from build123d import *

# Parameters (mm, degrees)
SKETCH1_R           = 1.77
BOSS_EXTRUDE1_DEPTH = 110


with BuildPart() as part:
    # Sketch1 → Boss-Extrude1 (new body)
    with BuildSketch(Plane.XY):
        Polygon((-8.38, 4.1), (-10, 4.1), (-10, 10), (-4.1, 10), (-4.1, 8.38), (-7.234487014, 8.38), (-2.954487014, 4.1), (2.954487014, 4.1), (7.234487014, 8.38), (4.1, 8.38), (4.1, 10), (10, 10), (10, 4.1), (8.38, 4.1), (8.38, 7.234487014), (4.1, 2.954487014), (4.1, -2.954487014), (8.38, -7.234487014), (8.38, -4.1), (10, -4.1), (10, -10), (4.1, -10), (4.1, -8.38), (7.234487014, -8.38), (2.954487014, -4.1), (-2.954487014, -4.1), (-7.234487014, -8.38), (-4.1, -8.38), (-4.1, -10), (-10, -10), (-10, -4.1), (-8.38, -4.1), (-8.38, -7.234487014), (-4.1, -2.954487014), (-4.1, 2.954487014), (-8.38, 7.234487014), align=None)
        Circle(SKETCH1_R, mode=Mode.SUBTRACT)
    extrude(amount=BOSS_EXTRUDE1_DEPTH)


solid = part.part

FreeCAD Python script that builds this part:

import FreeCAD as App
import Part
import Sketcher


def add_polygon(sketch, points):
    """Adds a closed chain of lines whose ends are joined by coincident constraints."""
    first, n = sketch.GeometryCount, len(points)
    for a, b in zip(points, points[1:] + points[:1]):
        sketch.addGeometry(Part.LineSegment(App.Vector(*a, 0), App.Vector(*b, 0)), False)
    for i in range(n):
        sketch.addConstraint(Sketcher.Constraint("Coincident", first + i, 2, first + (i + 1) % n, 1))

doc = App.newDocument("Part")
body = doc.addObject("PartDesign::Body", "Body")

# Sketch on XY plane
sketch1 = body.newObject("Sketcher::SketchObject", "Sketch")
sketch1.AttachmentSupport = (doc.getObject("XY_Plane"), [""])
sketch1.MapMode = "FlatFace"
add_polygon(sketch1, [(-10, 4.1), (-8.4, 4.1), (-8.4, 7.2), (-4.1, 3), (-4.1, -3), (-8.4, -7.2), (-8.4, -4.1), (-10, -4.1), (-10, -10), (-4.1, -10), (-4.1, -8.4), (-7.2, -8.4), (-3, -4.1), (3, -4.1), (7.2, -8.4), (4.1, -8.4), (4.1, -10), (10, -10), (10, -4.1), (8.4, -4.1), (8.4, -7.2), (4.1, -3), (4.1, 3), (8.4, 7.2), (8.4, 4.1), (10, 4.1), (10, 10), (4.1, 10), (4.1, 8.4), (7.2, 8.4), (3, 4.1), (-3, 4.1), (-7.2, 8.4), (-4.1, 8.4), (-4.1, 10), (-10, 10)])  # lines 0-35
sketch1.addGeometry(Part.Circle(App.Vector(0, 0, 0), App.Vector(0, 0, 1), 1.8), False)  # 36
sketch1.addConstraint([
    Sketcher.Constraint("Horizontal", 0),
    Sketcher.Constraint("Vertical", 1),
    Sketcher.Constraint("Vertical", 3),
    Sketcher.Constraint("Vertical", 5),
    Sketcher.Constraint("Horizontal", 6),
    Sketcher.Constraint("Vertical", 7),
    Sketcher.Constraint("Horizontal", 8),
    Sketcher.Constraint("Vertical", 9),
    Sketcher.Constraint("Horizontal", 10),
    Sketcher.Constraint("Horizontal", 12),
    Sketcher.Constraint("Horizontal", 14),
    Sketcher.Constraint("Vertical", 15),
    Sketcher.Constraint("Horizontal", 16),
    Sketcher.Constraint("Vertical", 17),
    Sketcher.Constraint("Horizontal", 18),
    Sketcher.Constraint("Vertical", 19),
    Sketcher.Constraint("Vertical", 21),
    Sketcher.Constraint("Vertical", 23),
    Sketcher.Constraint("Horizontal", 24),
    Sketcher.Constraint("Vertical", 25),
    Sketcher.Constraint("Horizontal", 26),
    Sketcher.Constraint("Vertical", 27),
    Sketcher.Constraint("Horizontal", 28),
    Sketcher.Constraint("Horizontal", 30),
    Sketcher.Constraint("Horizontal", 32),
    Sketcher.Constraint("Vertical", 33),
    Sketcher.Constraint("Horizontal", 34),
    Sketcher.Constraint("Vertical", 35),
    Sketcher.Constraint("Coincident", 36, 3, -1, 1),
    Sketcher.Constraint("Symmetric", 0, 2, 18, 2, -1, 1),
    Sketcher.Constraint("Symmetric", 2, 2, 20, 2, -1, 1),
    Sketcher.Constraint("Symmetric", 4, 2, 22, 2, -1, 1),
    Sketcher.Constraint("Symmetric", 6, 2, 24, 2, -1, 1),
    Sketcher.Constraint("Symmetric", 8, 2, 26, 2, -1, 1),
    Sketcher.Constraint("Symmetric", 10, 2, 28, 2, -1, 1),
    Sketcher.Constraint("Symmetric", 11, 2, 29, 2, -1, 1),
    Sketcher.Constraint("Symmetric", 13, 2, 31, 2, -1, 1),
    Sketcher.Constraint("Symmetric", 15, 2, 33, 2, -1, 1),
    Sketcher.Constraint("Symmetric", 10, 2, 13, 2, -2),
    Sketcher.Constraint("Symmetric", 8, 2, 15, 2, -2),
    Sketcher.Constraint("Symmetric", 6, 2, 17, 2, -2),
    Sketcher.Constraint("Symmetric", 4, 2, 19, 2, -2),
    Sketcher.Constraint("Perpendicular", 2, 4),
    Sketcher.Constraint("Parallel", 4, 11),
    Sketcher.Constraint("Perpendicular", 11, 13),
    Sketcher.Constraint("Parallel", 13, 20),
    Sketcher.Constraint("Perpendicular", 20, 22),
    Sketcher.Constraint("Perpendicular", 29, 31),
    Sketcher.Constraint("Horizontal", 6, 2, 11, 2),
    Sketcher.Constraint("Horizontal", 3, 2, 20, 2),
    Sketcher.Constraint("Vertical", 3, 2, 8, 2),
    Sketcher.Constraint("Vertical", 7, 2, 34, 2),
    Sketcher.Constraint("Equal", 32, 1),
    Sketcher.Constraint("Equal", 30, 3),
    Sketcher.Constraint("Equal", 34, 7),
    Sketcher.Constraint("Equal", 24, 9),
    Sketcher.Constraint("Diameter", 36, 3.54),
    Sketcher.Constraint("DistanceX", 8, 1, 8, 2, 5.9),
    Sketcher.Constraint("DistanceX", 6, 2, -1, 1, 10.0),
    Sketcher.Constraint("DistanceX", 0, 1, 0, 2, 1.62),
    Sketcher.Constraint("DistanceX", 10, 2, 10, 1, 3.134487),
])
pad1 = body.newObject("PartDesign::Pad", "Pad")
pad1.Profile = sketch1
pad1.Length = 110

doc.recompute()
